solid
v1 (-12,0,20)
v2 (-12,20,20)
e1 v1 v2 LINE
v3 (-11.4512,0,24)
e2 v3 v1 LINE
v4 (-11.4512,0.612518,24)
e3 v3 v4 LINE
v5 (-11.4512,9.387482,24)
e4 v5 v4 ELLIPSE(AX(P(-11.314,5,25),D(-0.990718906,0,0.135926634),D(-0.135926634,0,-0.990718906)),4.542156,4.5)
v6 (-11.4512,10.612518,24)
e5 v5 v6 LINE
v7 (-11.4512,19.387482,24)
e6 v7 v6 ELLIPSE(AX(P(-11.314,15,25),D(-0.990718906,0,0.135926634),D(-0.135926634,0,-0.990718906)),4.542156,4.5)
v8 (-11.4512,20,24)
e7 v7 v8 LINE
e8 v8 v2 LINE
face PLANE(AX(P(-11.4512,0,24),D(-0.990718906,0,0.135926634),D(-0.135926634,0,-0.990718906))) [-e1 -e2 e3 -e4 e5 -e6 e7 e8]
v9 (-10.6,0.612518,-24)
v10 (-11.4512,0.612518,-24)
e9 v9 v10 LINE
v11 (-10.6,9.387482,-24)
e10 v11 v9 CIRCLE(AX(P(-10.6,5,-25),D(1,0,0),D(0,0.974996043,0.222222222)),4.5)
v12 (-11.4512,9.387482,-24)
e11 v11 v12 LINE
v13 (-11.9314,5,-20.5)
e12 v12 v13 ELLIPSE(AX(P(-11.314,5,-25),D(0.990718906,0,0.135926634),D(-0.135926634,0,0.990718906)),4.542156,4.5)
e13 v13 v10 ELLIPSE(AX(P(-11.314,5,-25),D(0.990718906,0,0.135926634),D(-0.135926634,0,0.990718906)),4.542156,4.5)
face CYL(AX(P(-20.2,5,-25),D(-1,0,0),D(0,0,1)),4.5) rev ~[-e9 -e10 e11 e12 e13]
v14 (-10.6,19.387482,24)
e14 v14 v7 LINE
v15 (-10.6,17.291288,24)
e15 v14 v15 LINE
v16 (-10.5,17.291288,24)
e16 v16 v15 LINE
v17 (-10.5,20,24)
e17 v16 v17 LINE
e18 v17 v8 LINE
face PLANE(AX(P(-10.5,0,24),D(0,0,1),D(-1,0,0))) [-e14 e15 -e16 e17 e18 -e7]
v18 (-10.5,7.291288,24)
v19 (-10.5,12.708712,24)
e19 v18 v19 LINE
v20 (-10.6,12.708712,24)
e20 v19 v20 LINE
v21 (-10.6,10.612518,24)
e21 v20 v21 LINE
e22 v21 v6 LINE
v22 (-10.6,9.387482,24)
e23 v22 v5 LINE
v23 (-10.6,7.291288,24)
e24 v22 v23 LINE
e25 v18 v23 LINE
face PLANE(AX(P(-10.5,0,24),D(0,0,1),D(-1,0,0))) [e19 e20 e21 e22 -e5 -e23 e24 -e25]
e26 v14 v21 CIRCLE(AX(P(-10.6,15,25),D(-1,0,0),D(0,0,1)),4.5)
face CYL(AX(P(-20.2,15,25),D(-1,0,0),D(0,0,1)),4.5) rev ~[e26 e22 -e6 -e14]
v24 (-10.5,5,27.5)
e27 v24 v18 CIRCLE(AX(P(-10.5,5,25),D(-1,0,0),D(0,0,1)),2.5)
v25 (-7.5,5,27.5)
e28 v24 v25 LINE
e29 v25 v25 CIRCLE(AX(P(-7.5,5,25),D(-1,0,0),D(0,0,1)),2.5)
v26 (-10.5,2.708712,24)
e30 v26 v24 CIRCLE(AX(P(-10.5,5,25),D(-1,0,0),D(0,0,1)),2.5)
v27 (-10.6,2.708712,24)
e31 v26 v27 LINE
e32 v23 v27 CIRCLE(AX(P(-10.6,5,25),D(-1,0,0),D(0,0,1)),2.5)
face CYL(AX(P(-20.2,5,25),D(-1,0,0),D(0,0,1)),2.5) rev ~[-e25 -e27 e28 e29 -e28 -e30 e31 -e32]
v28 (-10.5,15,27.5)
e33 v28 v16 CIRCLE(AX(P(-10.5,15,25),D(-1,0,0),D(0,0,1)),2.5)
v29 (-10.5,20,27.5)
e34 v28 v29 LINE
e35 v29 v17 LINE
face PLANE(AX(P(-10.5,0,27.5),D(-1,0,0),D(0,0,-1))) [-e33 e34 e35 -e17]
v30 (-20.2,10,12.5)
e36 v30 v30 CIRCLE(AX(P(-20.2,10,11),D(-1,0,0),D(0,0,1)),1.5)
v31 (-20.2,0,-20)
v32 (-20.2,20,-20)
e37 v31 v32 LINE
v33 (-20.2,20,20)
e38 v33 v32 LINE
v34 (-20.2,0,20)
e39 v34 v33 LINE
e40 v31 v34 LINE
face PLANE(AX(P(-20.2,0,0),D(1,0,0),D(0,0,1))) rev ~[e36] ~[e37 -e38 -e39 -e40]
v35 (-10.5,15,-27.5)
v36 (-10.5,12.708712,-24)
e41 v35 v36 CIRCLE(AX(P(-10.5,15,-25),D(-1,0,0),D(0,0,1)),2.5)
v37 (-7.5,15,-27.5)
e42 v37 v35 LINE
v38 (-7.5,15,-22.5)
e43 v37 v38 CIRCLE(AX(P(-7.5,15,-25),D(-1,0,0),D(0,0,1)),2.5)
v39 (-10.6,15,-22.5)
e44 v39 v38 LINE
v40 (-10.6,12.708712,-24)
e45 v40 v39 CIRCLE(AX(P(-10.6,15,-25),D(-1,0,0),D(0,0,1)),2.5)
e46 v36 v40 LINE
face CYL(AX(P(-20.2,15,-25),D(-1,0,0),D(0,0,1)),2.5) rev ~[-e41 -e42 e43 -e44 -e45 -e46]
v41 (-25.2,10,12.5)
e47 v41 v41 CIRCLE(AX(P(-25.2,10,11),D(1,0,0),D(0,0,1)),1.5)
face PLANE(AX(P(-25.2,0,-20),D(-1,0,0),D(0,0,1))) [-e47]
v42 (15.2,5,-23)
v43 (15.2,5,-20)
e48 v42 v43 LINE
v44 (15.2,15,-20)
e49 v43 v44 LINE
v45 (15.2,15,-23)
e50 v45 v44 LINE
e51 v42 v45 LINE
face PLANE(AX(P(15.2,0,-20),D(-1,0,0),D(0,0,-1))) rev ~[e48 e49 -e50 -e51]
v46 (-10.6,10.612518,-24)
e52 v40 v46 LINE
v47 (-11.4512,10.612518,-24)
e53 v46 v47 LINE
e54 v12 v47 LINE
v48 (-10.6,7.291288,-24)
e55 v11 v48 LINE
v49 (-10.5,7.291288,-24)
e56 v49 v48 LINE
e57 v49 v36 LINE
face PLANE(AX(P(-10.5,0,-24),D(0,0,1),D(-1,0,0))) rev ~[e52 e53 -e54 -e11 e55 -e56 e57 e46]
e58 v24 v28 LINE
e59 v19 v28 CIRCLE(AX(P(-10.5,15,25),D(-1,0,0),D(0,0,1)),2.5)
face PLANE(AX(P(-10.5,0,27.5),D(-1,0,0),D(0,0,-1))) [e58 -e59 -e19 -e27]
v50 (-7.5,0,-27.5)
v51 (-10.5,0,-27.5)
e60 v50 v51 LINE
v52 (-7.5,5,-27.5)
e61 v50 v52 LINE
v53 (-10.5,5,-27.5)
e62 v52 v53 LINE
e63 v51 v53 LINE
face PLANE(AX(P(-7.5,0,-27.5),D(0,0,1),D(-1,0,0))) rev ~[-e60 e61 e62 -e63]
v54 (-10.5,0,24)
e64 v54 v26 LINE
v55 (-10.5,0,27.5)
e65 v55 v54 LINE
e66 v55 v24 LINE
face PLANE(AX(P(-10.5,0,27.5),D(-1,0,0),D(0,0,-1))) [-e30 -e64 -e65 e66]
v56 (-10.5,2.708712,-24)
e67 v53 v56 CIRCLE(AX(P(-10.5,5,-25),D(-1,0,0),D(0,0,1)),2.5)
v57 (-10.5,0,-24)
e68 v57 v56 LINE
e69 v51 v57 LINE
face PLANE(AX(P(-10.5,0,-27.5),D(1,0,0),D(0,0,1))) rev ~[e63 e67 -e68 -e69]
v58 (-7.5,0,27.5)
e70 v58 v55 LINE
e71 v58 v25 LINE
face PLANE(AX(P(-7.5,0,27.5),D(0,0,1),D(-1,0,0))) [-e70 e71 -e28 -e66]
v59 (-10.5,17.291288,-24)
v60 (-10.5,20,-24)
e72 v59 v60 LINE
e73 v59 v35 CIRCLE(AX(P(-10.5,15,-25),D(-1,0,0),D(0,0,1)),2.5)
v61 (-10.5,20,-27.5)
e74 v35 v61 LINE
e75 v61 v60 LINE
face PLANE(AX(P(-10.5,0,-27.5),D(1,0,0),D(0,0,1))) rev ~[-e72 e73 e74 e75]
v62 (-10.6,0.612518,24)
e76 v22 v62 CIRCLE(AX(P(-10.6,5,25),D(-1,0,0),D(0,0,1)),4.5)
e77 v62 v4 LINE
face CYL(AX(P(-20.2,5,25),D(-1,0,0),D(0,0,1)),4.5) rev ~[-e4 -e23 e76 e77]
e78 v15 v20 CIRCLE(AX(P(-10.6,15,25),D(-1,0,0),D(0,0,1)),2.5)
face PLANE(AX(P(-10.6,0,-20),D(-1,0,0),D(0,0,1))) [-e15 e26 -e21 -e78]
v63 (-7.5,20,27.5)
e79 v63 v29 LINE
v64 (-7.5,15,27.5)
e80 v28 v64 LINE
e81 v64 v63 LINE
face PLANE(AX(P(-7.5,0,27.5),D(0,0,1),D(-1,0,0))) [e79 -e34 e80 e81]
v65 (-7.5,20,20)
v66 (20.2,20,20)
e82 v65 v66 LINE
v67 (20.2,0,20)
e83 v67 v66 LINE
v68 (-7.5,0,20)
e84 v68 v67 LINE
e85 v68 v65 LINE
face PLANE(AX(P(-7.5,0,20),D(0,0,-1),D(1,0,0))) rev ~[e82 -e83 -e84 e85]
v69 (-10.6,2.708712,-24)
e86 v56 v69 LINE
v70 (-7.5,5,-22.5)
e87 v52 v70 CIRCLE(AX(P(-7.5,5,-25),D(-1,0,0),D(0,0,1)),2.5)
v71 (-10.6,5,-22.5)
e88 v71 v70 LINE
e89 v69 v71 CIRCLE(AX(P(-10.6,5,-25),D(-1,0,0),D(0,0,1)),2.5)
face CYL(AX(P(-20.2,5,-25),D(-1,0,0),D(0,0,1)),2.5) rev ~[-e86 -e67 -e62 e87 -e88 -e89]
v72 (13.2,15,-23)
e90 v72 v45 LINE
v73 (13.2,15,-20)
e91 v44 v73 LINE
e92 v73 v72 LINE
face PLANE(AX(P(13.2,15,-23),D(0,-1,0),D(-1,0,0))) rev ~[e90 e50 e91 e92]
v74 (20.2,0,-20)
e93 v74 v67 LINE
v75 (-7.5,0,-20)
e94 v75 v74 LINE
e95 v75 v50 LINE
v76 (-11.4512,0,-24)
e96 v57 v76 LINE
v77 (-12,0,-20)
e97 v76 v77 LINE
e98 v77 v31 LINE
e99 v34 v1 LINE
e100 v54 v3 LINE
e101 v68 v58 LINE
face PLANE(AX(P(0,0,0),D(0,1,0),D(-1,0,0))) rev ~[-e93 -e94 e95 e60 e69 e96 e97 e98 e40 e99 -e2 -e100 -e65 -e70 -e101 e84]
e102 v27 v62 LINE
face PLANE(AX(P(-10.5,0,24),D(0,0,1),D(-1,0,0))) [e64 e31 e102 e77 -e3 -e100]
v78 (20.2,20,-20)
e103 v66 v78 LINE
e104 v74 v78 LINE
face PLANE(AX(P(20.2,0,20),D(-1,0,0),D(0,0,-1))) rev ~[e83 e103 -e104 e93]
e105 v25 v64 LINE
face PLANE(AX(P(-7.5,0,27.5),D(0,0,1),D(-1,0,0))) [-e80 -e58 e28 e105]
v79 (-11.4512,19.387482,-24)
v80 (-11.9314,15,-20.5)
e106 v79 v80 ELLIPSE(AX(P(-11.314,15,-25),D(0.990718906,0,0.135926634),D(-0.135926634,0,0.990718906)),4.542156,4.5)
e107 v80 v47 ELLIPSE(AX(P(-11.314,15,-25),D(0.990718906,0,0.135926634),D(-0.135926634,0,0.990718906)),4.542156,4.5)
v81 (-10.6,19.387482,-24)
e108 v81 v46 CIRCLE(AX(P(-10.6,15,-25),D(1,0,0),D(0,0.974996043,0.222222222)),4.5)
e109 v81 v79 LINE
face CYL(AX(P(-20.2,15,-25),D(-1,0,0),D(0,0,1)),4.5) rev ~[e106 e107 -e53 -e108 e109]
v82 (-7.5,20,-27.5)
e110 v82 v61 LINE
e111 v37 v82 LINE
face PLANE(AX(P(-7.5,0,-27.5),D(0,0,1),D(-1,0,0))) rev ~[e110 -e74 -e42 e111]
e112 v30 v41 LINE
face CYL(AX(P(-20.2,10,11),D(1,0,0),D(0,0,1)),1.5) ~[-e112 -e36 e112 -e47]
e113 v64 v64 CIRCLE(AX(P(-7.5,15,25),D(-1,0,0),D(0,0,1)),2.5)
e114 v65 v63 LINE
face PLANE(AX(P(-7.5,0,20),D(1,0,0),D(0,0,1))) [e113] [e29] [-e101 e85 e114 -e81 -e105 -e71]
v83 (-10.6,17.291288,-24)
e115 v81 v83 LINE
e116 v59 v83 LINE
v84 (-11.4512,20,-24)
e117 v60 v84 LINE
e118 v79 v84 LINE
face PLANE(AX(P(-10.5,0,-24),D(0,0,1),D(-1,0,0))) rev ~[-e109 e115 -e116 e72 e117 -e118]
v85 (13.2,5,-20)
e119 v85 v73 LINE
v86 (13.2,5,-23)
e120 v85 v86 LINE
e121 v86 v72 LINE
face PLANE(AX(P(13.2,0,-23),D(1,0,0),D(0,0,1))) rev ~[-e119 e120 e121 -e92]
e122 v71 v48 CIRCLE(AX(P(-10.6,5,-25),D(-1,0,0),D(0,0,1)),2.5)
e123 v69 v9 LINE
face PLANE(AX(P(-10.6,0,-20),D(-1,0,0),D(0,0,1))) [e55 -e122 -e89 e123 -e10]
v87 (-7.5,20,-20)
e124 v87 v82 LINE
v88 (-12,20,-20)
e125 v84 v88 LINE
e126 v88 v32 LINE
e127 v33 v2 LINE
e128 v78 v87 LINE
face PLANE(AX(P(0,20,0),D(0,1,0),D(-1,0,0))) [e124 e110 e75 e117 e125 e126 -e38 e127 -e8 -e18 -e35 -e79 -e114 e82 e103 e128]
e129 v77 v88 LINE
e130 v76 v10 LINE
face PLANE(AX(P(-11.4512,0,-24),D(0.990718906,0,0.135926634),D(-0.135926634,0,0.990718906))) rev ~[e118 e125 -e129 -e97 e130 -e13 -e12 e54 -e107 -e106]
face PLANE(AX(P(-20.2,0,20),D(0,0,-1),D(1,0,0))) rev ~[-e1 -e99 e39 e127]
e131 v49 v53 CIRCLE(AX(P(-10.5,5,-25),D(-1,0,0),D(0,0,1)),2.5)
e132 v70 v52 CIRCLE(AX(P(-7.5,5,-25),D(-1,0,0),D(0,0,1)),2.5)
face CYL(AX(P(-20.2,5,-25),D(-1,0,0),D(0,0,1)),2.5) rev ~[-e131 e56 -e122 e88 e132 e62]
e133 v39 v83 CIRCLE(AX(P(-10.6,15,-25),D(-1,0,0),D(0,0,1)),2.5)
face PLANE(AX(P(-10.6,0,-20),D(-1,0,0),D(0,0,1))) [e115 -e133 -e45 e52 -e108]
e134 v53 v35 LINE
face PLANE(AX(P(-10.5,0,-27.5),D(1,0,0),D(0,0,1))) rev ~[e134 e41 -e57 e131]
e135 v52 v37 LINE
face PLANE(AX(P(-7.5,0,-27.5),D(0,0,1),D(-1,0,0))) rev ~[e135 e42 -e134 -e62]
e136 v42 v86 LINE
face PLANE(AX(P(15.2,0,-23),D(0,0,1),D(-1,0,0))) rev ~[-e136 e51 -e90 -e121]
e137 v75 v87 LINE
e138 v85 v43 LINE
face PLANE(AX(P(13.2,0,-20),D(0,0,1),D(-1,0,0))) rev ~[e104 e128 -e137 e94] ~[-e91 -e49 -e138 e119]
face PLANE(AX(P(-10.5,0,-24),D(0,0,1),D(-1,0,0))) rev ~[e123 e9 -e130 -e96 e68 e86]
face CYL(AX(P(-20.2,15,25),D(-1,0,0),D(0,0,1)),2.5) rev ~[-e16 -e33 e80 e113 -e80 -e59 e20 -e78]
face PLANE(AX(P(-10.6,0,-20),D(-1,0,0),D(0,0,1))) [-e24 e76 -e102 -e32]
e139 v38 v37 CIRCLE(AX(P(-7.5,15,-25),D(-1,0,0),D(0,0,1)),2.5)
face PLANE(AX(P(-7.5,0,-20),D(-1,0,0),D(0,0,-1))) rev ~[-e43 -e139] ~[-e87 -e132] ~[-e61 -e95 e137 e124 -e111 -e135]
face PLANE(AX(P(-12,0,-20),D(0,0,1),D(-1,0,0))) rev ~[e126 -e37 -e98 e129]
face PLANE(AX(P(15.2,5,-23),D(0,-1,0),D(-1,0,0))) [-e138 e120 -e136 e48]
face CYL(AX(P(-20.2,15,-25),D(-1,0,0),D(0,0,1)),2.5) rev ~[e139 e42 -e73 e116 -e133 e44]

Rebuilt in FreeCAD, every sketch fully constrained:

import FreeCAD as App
import Part
import Sketcher

V = App.Vector
Q = App.Units.Quantity

doc = App.newDocument("Part")
body = doc.addObject("PartDesign::Body", "Body")

# Sketch on XZ plane
sketch1 = body.newObject("Sketcher::SketchObject", "Sketch")
sketch1.AttachmentSupport = (doc.getObject("XZ_Plane"), [""])
sketch1.MapMode = "FlatFace"
sketch1.addGeometry([
    Part.LineSegment(V(-20.2, 20, 0), V(-12, 20, 0)),  # 0
    Part.LineSegment(V(-12, 20, 0), V(-11.5, 24, 0)),  # 1
    Part.LineSegment(V(-11.5, 24, 0), V(-10.5, 24, 0)),  # 2
    Part.LineSegment(V(-10.5, 24, 0), V(-10.5, 27.5, 0)),  # 3
    Part.LineSegment(V(-10.5, 27.5, 0), V(-7.5, 27.5, 0)),  # 4
    Part.LineSegment(V(-7.5, 27.5, 0), V(-7.5, 20, 0)),  # 5
    Part.LineSegment(V(-7.5, 20, 0), V(20.2, 20, 0)),  # 6
    Part.LineSegment(V(20.2, 20, 0), V(20.2, -20, 0)),  # 7
    Part.LineSegment(V(20.2, -20, 0), V(15.2, -20, 0)),  # 8
    Part.LineSegment(V(15.2, -20, 0), V(15.2, -23, 0)),  # 9
    Part.LineSegment(V(15.2, -23, 0), V(13.2, -23, 0)),  # 10
    Part.LineSegment(V(13.2, -23, 0), V(13.2, -20, 0)),  # 11
    Part.LineSegment(V(13.2, -20, 0), V(-7.5, -20, 0)),  # 12
    Part.LineSegment(V(-7.5, -20, 0), V(-7.5, -27.5, 0)),  # 13
    Part.LineSegment(V(-7.5, -27.5, 0), V(-10.5, -27.5, 0)),  # 14
    Part.LineSegment(V(-10.5, -27.5, 0), V(-10.5, -24, 0)),  # 15
    Part.LineSegment(V(-10.5, -24, 0), V(-11.5, -24, 0)),  # 16
    Part.LineSegment(V(-11.5, -24, 0), V(-12, -20, 0)),  # 17
    Part.LineSegment(V(-12, -20, 0), V(-20.2, -20, 0)),  # 18
    Part.LineSegment(V(-20.2, -20, 0), V(-20.2, 20, 0)),  # 19
], False)
sketch1.addConstraint([
    Sketcher.Constraint("Coincident", 0, 2, 1, 1),
    Sketcher.Constraint("Coincident", 1, 2, 2, 1),
    Sketcher.Constraint("Coincident", 2, 2, 3, 1),
    Sketcher.Constraint("Coincident", 3, 2, 4, 1),
    Sketcher.Constraint("Coincident", 4, 2, 5, 1),
    Sketcher.Constraint("Coincident", 5, 2, 6, 1),
    Sketcher.Constraint("Coincident", 6, 2, 7, 1),
    Sketcher.Constraint("Coincident", 7, 2, 8, 1),
    Sketcher.Constraint("Coincident", 8, 2, 9, 1),
    Sketcher.Constraint("Coincident", 9, 2, 10, 1),
    Sketcher.Constraint("Coincident", 10, 2, 11, 1),
    Sketcher.Constraint("Coincident", 11, 2, 12, 1),
    Sketcher.Constraint("Coincident", 12, 2, 13, 1),
    Sketcher.Constraint("Coincident", 13, 2, 14, 1),
    Sketcher.Constraint("Coincident", 14, 2, 15, 1),
    Sketcher.Constraint("Coincident", 15, 2, 16, 1),
    Sketcher.Constraint("Coincident", 16, 2, 17, 1),
    Sketcher.Constraint("Coincident", 17, 2, 18, 1),
    Sketcher.Constraint("Coincident", 18, 2, 19, 1),
    Sketcher.Constraint("Coincident", 19, 2, 0, 1),
    Sketcher.Constraint("Horizontal", 0),
    Sketcher.Constraint("Horizontal", 2),
    Sketcher.Constraint("Vertical", 3),
    Sketcher.Constraint("Horizontal", 4),
    Sketcher.Constraint("Vertical", 5),
    Sketcher.Constraint("Horizontal", 6),
    Sketcher.Constraint("Vertical", 7),
    Sketcher.Constraint("Horizontal", 8),
    Sketcher.Constraint("Vertical", 9),
    Sketcher.Constraint("Horizontal", 10),
    Sketcher.Constraint("Vertical", 11),
    Sketcher.Constraint("Horizontal", 12),
    Sketcher.Constraint("Vertical", 13),
    Sketcher.Constraint("Horizontal", 14),
    Sketcher.Constraint("Vertical", 15),
    Sketcher.Constraint("Horizontal", 16),
    Sketcher.Constraint("Horizontal", 18),
    Sketcher.Constraint("Vertical", 19),
    Sketcher.Constraint("Symmetric", 6, 2, 18, 2, -1, 1),
    Sketcher.Constraint("Symmetric", 5, 2, 12, 2, -1),
    Sketcher.Constraint("Symmetric", 3, 2, 14, 2, -1),
    Sketcher.Constraint("Symmetric", 1, 2, 16, 2, -1),
    Sketcher.Constraint("Symmetric", 0, 2, 17, 2, -1),
    Sketcher.Constraint("Horizontal", 8, 2, 11, 2),
    Sketcher.Constraint("Equal", 14, 9),
    Sketcher.Constraint("DistanceX", 4, 1, 4, 2, Q("3 mm")),
    Sketcher.Constraint("DistanceX", 8, 2, 8, 1, Q("5 mm")),
    Sketcher.Constraint("DistanceX", 10, 2, 10, 1, Q("2 mm")),
    Sketcher.Constraint("DistanceY", 7, 2, 7, 1, Q("40 mm")),
    Sketcher.Constraint("DistanceX", 6, 1, 6, 2, Q("27.7 mm")),
    Sketcher.Constraint("DistanceY", 5, 2, 5, 1, Q("7.5 mm")),
    Sketcher.Constraint("DistanceX", 4, 2, -1, 1, Q("7.5 mm")),
    Sketcher.Constraint("DistanceX", 0, 1, 0, 2, Q("8.2 mm")),
    Sketcher.Constraint("DistanceY", 3, 1, 3, 2, Q("3.5 mm")),
    Sketcher.Constraint("DistanceX", 2, 1, 2, 2, Q("0.9512 mm")),
])
pad1 = body.newObject("PartDesign::Pad", "Pad")
pad1.Profile = sketch1
pad1.Length = 20
pad1.Reversed = True

# Sketch on XY plane
sketch2 = body.newObject("Sketcher::SketchObject", "Sketch001")
sketch2.AttachmentSupport = (doc.getObject("XY_Plane"), [""])
sketch2.MapMode = "FlatFace"
sketch2.AttachmentOffset = App.Placement(V(0, 0, -23), App.Rotation())
sketch2.addGeometry([
    Part.LineSegment(V(15.2, 5, 0), V(15.2, -5, 0)),  # 0
    Part.LineSegment(V(15.2, -5, 0), V(11.2, -5, 0)),  # 1
    Part.LineSegment(V(11.2, -5, 0), V(11.2, 5, 0)),  # 2
    Part.LineSegment(V(11.2, 5, 0), V(15.2, 5, 0)),  # 3
    Part.LineSegment(V(15.2, 25, 0), V(15.2, 15, 0)),  # 4
    Part.LineSegment(V(15.2, 15, 0), V(11.2, 15, 0)),  # 5
    Part.LineSegment(V(11.2, 15, 0), V(11.2, 25, 0)),  # 6
    Part.LineSegment(V(11.2, 25, 0), V(15.2, 25, 0)),  # 7
], False)
sketch2.addConstraint([
    Sketcher.Constraint("Coincident", 0, 2, 1, 1),
    Sketcher.Constraint("Coincident", 1, 2, 2, 1),
    Sketcher.Constraint("Coincident", 2, 2, 3, 1),
    Sketcher.Constraint("Coincident", 3, 2, 0, 1),
    Sketcher.Constraint("Coincident", 4, 2, 5, 1),
    Sketcher.Constraint("Coincident", 5, 2, 6, 1),
    Sketcher.Constraint("Coincident", 6, 2, 7, 1),
    Sketcher.Constraint("Coincident", 7, 2, 4, 1),
    Sketcher.Constraint("Vertical", 0),
    Sketcher.Constraint("Horizontal", 1),
    Sketcher.Constraint("Vertical", 2),
    Sketcher.Constraint("Horizontal", 3),
    Sketcher.Constraint("Vertical", 4),
    Sketcher.Constraint("Horizontal", 5),
    Sketcher.Constraint("Vertical", 6),
    Sketcher.Constraint("Horizontal", 7),
    Sketcher.Constraint("Vertical", 3, 2, 4, 2),
    Sketcher.Constraint("Vertical", 2, 2, 5, 2),
    Sketcher.Constraint("Equal", 2, 4),
    Sketcher.Constraint("DistanceX", 1, 2, 1, 1, Q("4 mm")),
    Sketcher.Constraint("DistanceY", 0, 2, 0, 1, Q("10 mm")),
    Sketcher.Constraint("DistanceY", 0, 2, -1, 1, Q("5 mm")),
    Sketcher.Constraint("DistanceY", -1, 1, 4, 2, Q("15 mm")),
    Sketcher.Constraint("DistanceX", -1, 1, 0, 2, Q("15.2 mm")),
])
pocket1 = body.newObject("PartDesign::Pocket", "Pocket")
pocket1.Profile = sketch2
pocket1.Length = 3
pocket1.Reversed = True

# Sketch on YZ plane
sketch3 = body.newObject("Sketcher::SketchObject", "Sketch002")
sketch3.AttachmentSupport = (doc.getObject("YZ_Plane"), [""])
sketch3.MapMode = "FlatFace"
sketch3.AttachmentOffset = App.Placement(V(0, 0, -20.2), App.Rotation())
sketch3.addGeometry([
    Part.Circle(V(5, -25, 0), V(0, 0, 1), 2.5),
    Part.Circle(V(15, -25, 0), V(0, 0, 1), 2.5),
    Part.Circle(V(15, 25, 0), V(0, 0, 1), 2.5),
    Part.Circle(V(5, 25, 0), V(0, 0, 1), 2.5),
], False)
sketch3.addConstraint([
    Sketcher.Constraint("Equal", 0, 1),
    Sketcher.Constraint("Equal", 1, 2),
    Sketcher.Constraint("Equal", 2, 3),
    Sketcher.Constraint("Symmetric", 1, 3, 2, 3, -1),
    Sketcher.Constraint("Symmetric", 0, 3, 3, 3, -1),
    Sketcher.Constraint("Horizontal", 0, 3, 1, 3),
    Sketcher.Constraint("Diameter", 0, Q("5 mm")),
    Sketcher.Constraint("DistanceX", -1, 1, 0, 3, Q("5 mm")),
    Sketcher.Constraint("DistanceY", 0, 3, -1, 1, Q("25 mm")),
    Sketcher.Constraint("DistanceX", -1, 1, 1, 3, Q("15 mm")),
])
pocket2 = body.newObject("PartDesign::Pocket", "Pocket001")
pocket2.Profile = sketch3
pocket2.Length = 15
pocket2.Reversed = True

# Sketch on YZ plane
sketch4 = body.newObject("Sketcher::SketchObject", "Sketch003")
sketch4.AttachmentSupport = (doc.getObject("YZ_Plane"), [""])
sketch4.MapMode = "FlatFace"
sketch4.AttachmentOffset = App.Placement(V(0, 0, -20.2), App.Rotation())
sketch4.addGeometry(Part.Circle(V(10, 11, 0), V(0, 0, 1), 1.5), False)
sketch4.addConstraint([
    Sketcher.Constraint("Diameter", 0, Q("3 mm")),
    Sketcher.Constraint("DistanceX", -1, 1, 0, 3, Q("10 mm")),
    Sketcher.Constraint("DistanceY", -1, 1, 0, 3, Q("11 mm")),
])
pad2 = body.newObject("PartDesign::Pad", "Pad001")
pad2.Profile = sketch4
pad2.Length = 5
pad2.Reversed = True

# Sketch on YZ plane
sketch5 = body.newObject("Sketcher::SketchObject", "Sketch004")
sketch5.AttachmentSupport = (doc.getObject("YZ_Plane"), [""])
sketch5.MapMode = "FlatFace"
sketch5.AttachmentOffset = App.Placement(V(0, 0, -20.2), App.Rotation())
sketch5.addGeometry([
    Part.Circle(V(15, 25, 0), V(0, 0, 1), 4.5),  # 0
    Part.Circle(V(5, 25, 0), V(0, 0, 1), 4.5),  # 1
    Part.Circle(V(5, -25, 0), V(0, 0, 1), 4.5),  # 2
    Part.Circle(V(15, -25, 0), V(0, 0, 1), 4.5),  # 3
    Part.Circle(V(15, -25, 0), V(0, 0, 1), 2.5),  # 4
], False)
sketch5.addConstraint([
    Sketcher.Constraint("Coincident", 4, 3, 3, 3),
    Sketcher.Constraint("Equal", 0, 1),
    Sketcher.Constraint("Equal", 1, 2),
    Sketcher.Constraint("Equal", 2, 3),
    Sketcher.Constraint("Symmetric", 1, 3, 2, 3, -1),
    Sketcher.Constraint("Symmetric", 0, 3, 3, 3, -1),
    Sketcher.Constraint("Horizontal", 0, 3, 1, 3),
    Sketcher.Constraint("Diameter", 0, Q("9 mm")),
    Sketcher.Constraint("Diameter", 4, Q("5 mm")),
    Sketcher.Constraint("DistanceX", -1, 1, 0, 3, Q("15 mm")),
    Sketcher.Constraint("DistanceY", -1, 1, 0, 3, Q("25 mm")),
    Sketcher.Constraint("DistanceX", -1, 1, 1, 3, Q("5 mm")),
])
pocket3 = body.newObject("PartDesign::Pocket", "Pocket002")
pocket3.Profile = sketch5
pocket3.Length = 9.6
pocket3.Reversed = True

doc.recompute()
